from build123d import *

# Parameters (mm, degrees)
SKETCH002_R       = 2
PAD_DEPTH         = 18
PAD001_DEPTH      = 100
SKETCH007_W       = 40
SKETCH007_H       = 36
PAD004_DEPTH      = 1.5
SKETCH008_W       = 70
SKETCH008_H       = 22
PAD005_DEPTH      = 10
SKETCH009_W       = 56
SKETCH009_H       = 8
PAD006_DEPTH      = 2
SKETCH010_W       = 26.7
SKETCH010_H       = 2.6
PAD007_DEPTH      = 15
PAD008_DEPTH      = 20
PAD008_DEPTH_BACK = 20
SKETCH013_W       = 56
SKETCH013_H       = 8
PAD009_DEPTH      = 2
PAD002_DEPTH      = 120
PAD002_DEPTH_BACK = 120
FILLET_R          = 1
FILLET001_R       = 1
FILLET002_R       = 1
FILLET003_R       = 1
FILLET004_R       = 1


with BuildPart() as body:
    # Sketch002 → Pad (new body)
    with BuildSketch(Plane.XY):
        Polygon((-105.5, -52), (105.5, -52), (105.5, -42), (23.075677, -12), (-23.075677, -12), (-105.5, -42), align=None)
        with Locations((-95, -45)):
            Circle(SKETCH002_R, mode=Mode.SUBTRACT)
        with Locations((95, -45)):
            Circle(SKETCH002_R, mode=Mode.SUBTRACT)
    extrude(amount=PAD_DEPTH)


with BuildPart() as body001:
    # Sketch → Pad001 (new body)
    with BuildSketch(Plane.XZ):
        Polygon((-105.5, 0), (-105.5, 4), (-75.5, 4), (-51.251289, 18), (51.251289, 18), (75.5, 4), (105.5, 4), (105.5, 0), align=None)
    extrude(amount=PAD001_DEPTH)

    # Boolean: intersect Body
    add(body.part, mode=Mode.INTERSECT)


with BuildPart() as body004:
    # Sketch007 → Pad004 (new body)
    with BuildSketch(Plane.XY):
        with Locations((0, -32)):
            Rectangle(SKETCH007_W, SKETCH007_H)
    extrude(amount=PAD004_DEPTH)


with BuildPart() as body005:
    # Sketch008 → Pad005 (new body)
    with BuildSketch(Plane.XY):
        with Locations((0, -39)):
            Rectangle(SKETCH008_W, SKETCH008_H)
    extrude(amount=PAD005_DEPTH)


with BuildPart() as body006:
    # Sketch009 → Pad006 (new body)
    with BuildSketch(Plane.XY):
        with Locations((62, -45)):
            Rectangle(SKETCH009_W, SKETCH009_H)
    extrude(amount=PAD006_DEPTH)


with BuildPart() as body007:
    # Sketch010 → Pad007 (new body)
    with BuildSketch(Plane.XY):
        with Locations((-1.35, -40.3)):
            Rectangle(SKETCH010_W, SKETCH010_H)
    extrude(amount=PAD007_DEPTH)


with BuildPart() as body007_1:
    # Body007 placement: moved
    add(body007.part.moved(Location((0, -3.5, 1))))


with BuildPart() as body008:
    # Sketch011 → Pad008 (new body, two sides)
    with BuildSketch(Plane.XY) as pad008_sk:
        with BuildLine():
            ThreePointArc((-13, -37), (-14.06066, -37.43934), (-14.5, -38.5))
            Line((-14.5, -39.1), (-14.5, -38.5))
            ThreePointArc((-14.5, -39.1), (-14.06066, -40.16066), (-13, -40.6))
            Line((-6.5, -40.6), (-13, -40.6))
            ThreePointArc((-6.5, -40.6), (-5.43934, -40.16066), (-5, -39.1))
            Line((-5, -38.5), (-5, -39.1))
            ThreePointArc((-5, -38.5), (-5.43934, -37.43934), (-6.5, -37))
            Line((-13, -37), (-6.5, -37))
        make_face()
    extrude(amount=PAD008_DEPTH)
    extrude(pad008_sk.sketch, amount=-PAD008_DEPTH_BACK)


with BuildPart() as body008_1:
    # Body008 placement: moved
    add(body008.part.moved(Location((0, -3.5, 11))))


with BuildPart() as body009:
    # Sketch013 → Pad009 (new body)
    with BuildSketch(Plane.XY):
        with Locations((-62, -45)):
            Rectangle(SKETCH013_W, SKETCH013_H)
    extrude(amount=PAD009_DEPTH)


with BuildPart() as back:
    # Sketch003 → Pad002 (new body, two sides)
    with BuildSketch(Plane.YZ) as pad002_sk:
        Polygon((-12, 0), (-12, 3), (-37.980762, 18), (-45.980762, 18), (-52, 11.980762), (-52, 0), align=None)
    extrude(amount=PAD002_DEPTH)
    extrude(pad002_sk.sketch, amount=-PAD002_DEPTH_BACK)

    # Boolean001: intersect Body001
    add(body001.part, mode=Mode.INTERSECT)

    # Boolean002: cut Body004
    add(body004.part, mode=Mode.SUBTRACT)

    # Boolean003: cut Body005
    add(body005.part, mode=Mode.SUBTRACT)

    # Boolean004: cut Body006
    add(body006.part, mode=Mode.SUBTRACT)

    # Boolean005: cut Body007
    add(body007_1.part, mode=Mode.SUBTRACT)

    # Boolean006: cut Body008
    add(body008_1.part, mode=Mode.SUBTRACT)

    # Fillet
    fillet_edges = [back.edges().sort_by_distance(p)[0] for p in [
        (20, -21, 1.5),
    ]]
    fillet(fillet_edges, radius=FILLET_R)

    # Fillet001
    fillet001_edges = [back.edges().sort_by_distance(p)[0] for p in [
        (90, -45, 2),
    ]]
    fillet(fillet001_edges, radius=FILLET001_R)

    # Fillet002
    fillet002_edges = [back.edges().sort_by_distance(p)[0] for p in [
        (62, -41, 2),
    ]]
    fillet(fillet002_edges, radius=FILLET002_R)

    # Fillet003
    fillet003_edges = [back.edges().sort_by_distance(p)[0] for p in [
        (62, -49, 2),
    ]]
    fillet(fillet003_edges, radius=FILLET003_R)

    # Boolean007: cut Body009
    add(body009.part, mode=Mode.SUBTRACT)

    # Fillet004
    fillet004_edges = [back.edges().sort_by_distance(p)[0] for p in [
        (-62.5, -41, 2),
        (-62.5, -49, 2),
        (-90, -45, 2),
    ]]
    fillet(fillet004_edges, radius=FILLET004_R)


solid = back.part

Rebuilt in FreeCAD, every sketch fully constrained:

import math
import FreeCAD as App
import Part
import Sketcher
from FreeCAD import Vector
Q = App.Units.Quantity


def edges_at(feature, points):
    """Names of the edges that pass closest to the given points."""
    edges = feature.Shape.Edges
    near = lambda p: min(range(len(edges)), key=lambda i: edges[i].distToShape(Part.Vertex(*p))[0])
    return sorted({f"Edge{near(p) + 1}" for p in points})

doc = App.newDocument("Part")
body = doc.addObject("PartDesign::Body", "Body")

# Sketch on XY plane
sketch1 = doc.addObject("Sketcher::SketchObject", "Sketch")
body.addObject(sketch1)
sketch1.AttachmentSupport = (doc.XY_Plane, [""])
sketch1.MapMode = "FlatFace"
sketch1.addGeometry([
    Part.LineSegment(Vector(-105.5, -52, 0), Vector(105.5, -52, 0)),  # 0
    Part.LineSegment(Vector(105.5, -52, 0), Vector(105.5, -42, 0)),  # 1
    Part.LineSegment(Vector(105.5, -42, 0), Vector(23.1, -12, 0)),  # 2
    Part.LineSegment(Vector(23.1, -12, 0), Vector(-23.1, -12, 0)),  # 3
    Part.LineSegment(Vector(-23.1, -12, 0), Vector(-105.5, -42, 0)),  # 4
    Part.LineSegment(Vector(-105.5, -42, 0), Vector(-105.5, -52, 0)),  # 5
    Part.Circle(Vector(-95, -45, 0), Vector(0, 0, 1), 2),  # 6
    Part.Circle(Vector(95, -45, 0), Vector(0, 0, 1), 2),  # 7
], False)
sketch1.addConstraint([
    Sketcher.Constraint("Coincident", 0, 2, 1, 1),
    Sketcher.Constraint("Coincident", 1, 2, 2, 1),
    Sketcher.Constraint("Coincident", 2, 2, 3, 1),
    Sketcher.Constraint("Coincident", 3, 2, 4, 1),
    Sketcher.Constraint("Coincident", 4, 2, 5, 1),
    Sketcher.Constraint("Coincident", 5, 2, 0, 1),
    Sketcher.Constraint("Horizontal", 0),
    Sketcher.Constraint("Vertical", 1),
    Sketcher.Constraint("Horizontal", 3),
    Sketcher.Constraint("Vertical", 5),
    Sketcher.Constraint("Equal", 6, 7),
    Sketcher.Constraint("Symmetric", 6, 3, 7, 3, -2),
    Sketcher.Constraint("Symmetric", 1, 2, 4, 2, -2),
    Sketcher.Constraint("Equal", 2, 4),
    Sketcher.Constraint("Diameter", 6, 4.0),
    Sketcher.Constraint("DistanceX", 0, 1, 0, 2, 211.0),
    Sketcher.Constraint("DistanceY", 1, 1, 1, 2, 10.0),
    Sketcher.Constraint("Angle", 2, Q("160 deg")),
    Sketcher.Constraint("DistanceX", 6, 3, -1, 1, 95.0),
    Sketcher.Constraint("DistanceY", 6, 3, -1, 1, 45.0),
    Sketcher.Constraint("DistanceY", 0, 2, -1, 1, 52.0),
    Sketcher.Constraint("DistanceY", 2, 2, -1, 1, 12.0),
])
pad1 = doc.addObject("PartDesign::Pad", "Pad")
body.addObject(pad1)
pad1.Profile = sketch1
pad1.Length = 18
body2 = doc.addObject("PartDesign::Body", "Body001")

# Sketch on XZ plane
sketch2 = doc.addObject("Sketcher::SketchObject", "Sketch001")
body2.addObject(sketch2)
sketch2.AttachmentSupport = (doc.getObject("XZ_Plane001"), [""])
sketch2.MapMode = "FlatFace"
sketch2.addGeometry([
    Part.LineSegment(Vector(-105.5, 4, 0), Vector(-105.5, 0, 0)),  # 0
    Part.LineSegment(Vector(-105.5, 0, 0), Vector(105.5, 0, 0)),  # 1
    Part.LineSegment(Vector(105.5, 0, 0), Vector(105.5, 4, 0)),  # 2
    Part.LineSegment(Vector(105.5, 4, 0), Vector(75.5, 4, 0)),  # 3
    Part.LineSegment(Vector(75.5, 4, 0), Vector(51.3, 18, 0)),  # 4
    Part.LineSegment(Vector(51.3, 18, 0), Vector(-51.3, 18, 0)),  # 5
    Part.LineSegment(Vector(-51.3, 18, 0), Vector(-75.5, 4, 0)),  # 6
    Part.LineSegment(Vector(-75.5, 4, 0), Vector(-105.5, 4, 0)),  # 7
], False)
sketch2.addConstraint([
    Sketcher.Constraint("Coincident", 0, 2, 1, 1),
    Sketcher.Constraint("Coincident", 1, 2, 2, 1),
    Sketcher.Constraint("Coincident", 2, 2, 3, 1),
    Sketcher.Constraint("Coincident", 3, 2, 4, 1),
    Sketcher.Constraint("Coincident", 4, 2, 5, 1),
    Sketcher.Constraint("Coincident", 5, 2, 6, 1),
    Sketcher.Constraint("Coincident", 6, 2, 7, 1),
    Sketcher.Constraint("Coincident", 7, 2, 0, 1),
    Sketcher.Constraint("Vertical", 0),
    Sketcher.Constraint("Horizontal", 1),
    Sketcher.Constraint("Vertical", 2),
    Sketcher.Constraint("Horizontal", 3),
    Sketcher.Constraint("Horizontal", 5),
    Sketcher.Constraint("Horizontal", 7),
    Sketcher.Constraint("Symmetric", 0, 2, 1, 2, -1, 1),
    Sketcher.Constraint("Symmetric", 3, 2, 6, 2, -2),
    Sketcher.Constraint("Equal", 4, 6),
    Sketcher.Constraint("DistanceX", 1, 1, 1, 2, 211.0),
    Sketcher.Constraint("DistanceX", 3, 2, 3, 1, 30.0),
    Sketcher.Constraint("DistanceY", 0, 2, 0, 1, 4.0),
    Sketcher.Constraint("Angle", 4, Q("150 deg")),
    Sketcher.Constraint("Distance", 4, 28.0),
])
pad2 = doc.addObject("PartDesign::Pad", "Pad001")
body2.addObject(pad2)
pad2.Profile = sketch2
pad2.Length = 100
doc.recompute()

boolean = doc.addObject("PartDesign::Boolean", "Boolean")
body2.addObject(boolean)
boolean.Type = "Common"
boolean.addObjects([body])
body3 = doc.addObject("PartDesign::Body", "Body002")

# Sketch on XY plane
sketch3 = doc.addObject("Sketcher::SketchObject", "Sketch002")
body3.addObject(sketch3)
sketch3.AttachmentSupport = (doc.getObject("XY_Plane002"), [""])
sketch3.MapMode = "FlatFace"
sketch3.addGeometry([
    Part.LineSegment(Vector(-20, -14, 0), Vector(-20, -50, 0)),
    Part.LineSegment(Vector(-20, -50, 0), Vector(20, -50, 0)),
    Part.LineSegment(Vector(20, -50, 0), Vector(20, -14, 0)),
    Part.LineSegment(Vector(20, -14, 0), Vector(-20, -14, 0)),
], False)
sketch3.addConstraint([
    Sketcher.Constraint("Coincident", 0, 2, 1, 1),
    Sketcher.Constraint("Coincident", 1, 2, 2, 1),
    Sketcher.Constraint("Coincident", 2, 2, 3, 1),
    Sketcher.Constraint("Coincident", 3, 2, 0, 1),
    Sketcher.Constraint("Vertical", 0),
    Sketcher.Constraint("Horizontal", 1),
    Sketcher.Constraint("Vertical", 2),
    Sketcher.Constraint("Horizontal", 3),
    Sketcher.Constraint("DistanceX", 1, 1, 1, 2, 40.0),
    Sketcher.Constraint("DistanceY", 0, 2, 0, 1, 36.0),
    Sketcher.Constraint("DistanceX", 0, 2, -1, 1, 20.0),
    Sketcher.Constraint("DistanceY", 0, 2, -1, 1, 50.0),
])
pad3 = doc.addObject("PartDesign::Pad", "Pad002")
body3.addObject(pad3)
pad3.Profile = sketch3
pad3.Length = 1.5
body4 = doc.addObject("PartDesign::Body", "Body003")

# Sketch on XY plane
sketch4 = doc.addObject("Sketcher::SketchObject", "Sketch003")
body4.addObject(sketch4)
sketch4.AttachmentSupport = (doc.getObject("XY_Plane003"), [""])
sketch4.MapMode = "FlatFace"
sketch4.addGeometry([
    Part.LineSegment(Vector(-35, -28, 0), Vector(-35, -50, 0)),
    Part.LineSegment(Vector(-35, -50, 0), Vector(35, -50, 0)),
    Part.LineSegment(Vector(35, -50, 0), Vector(35, -28, 0)),
    Part.LineSegment(Vector(35, -28, 0), Vector(-35, -28, 0)),
], False)
sketch4.addConstraint([
    Sketcher.Constraint("Coincident", 0, 2, 1, 1),
    Sketcher.Constraint("Coincident", 1, 2, 2, 1),
    Sketcher.Constraint("Coincident", 2, 2, 3, 1),
    Sketcher.Constraint("Coincident", 3, 2, 0, 1),
    Sketcher.Constraint("Vertical", 0),
    Sketcher.Constraint("Horizontal", 1),
    Sketcher.Constraint("Vertical", 2),
    Sketcher.Constraint("Horizontal", 3),
    Sketcher.Constraint("DistanceX", 1, 1, 1, 2, 70.0),
    Sketcher.Constraint("DistanceY", 0, 2, 0, 1, 22.0),
    Sketcher.Constraint("DistanceX", 0, 2, -1, 1, 35.0),
    Sketcher.Constraint("DistanceY", 0, 2, -1, 1, 50.0),
])
pad4 = doc.addObject("PartDesign::Pad", "Pad003")
body4.addObject(pad4)
pad4.Profile = sketch4
pad4.Length = 10
body5 = doc.addObject("PartDesign::Body", "Body004")

# Sketch on XY plane
sketch5 = doc.addObject("Sketcher::SketchObject", "Sketch004")
body5.addObject(sketch5)
sketch5.AttachmentSupport = (doc.getObject("XY_Plane004"), [""])
sketch5.MapMode = "FlatFace"
sketch5.addGeometry([
    Part.LineSegment(Vector(34, -41, 0), Vector(34, -49, 0)),
    Part.LineSegment(Vector(34, -49, 0), Vector(90, -49, 0)),
    Part.LineSegment(Vector(90, -49, 0), Vector(90, -41, 0)),
    Part.LineSegment(Vector(90, -41, 0), Vector(34, -41, 0)),
], False)
sketch5.addConstraint([
    Sketcher.Constraint("Coincident", 0, 2, 1, 1),
    Sketcher.Constraint("Coincident", 1, 2, 2, 1),
    Sketcher.Constraint("Coincident", 2, 2, 3, 1),
    Sketcher.Constraint("Coincident", 3, 2, 0, 1),
    Sketcher.Constraint("Vertical", 0),
    Sketcher.Constraint("Horizontal", 1),
    Sketcher.Constraint("Vertical", 2),
    Sketcher.Constraint("Horizontal", 3),
    Sketcher.Constraint("DistanceX", 1, 1, 1, 2, 56.0),
    Sketcher.Constraint("DistanceY", 0, 2, 0, 1, 8.0),
    Sketcher.Constraint("DistanceX", -1, 1, 0, 2, 34.0),
    Sketcher.Constraint("DistanceY", 0, 2, -1, 1, 49.0),
])
pad5 = doc.addObject("PartDesign::Pad", "Pad004")
body5.addObject(pad5)
pad5.Profile = sketch5
pad5.Length = 2
body6 = doc.addObject("PartDesign::Body", "Body005")

# Sketch on XY plane
sketch6 = doc.addObject("Sketcher::SketchObject", "Sketch005")
body6.addObject(sketch6)
sketch6.AttachmentSupport = (doc.getObject("XY_Plane005"), [""])
sketch6.MapMode = "FlatFace"
sketch6.addGeometry([
    Part.LineSegment(Vector(-14.7, -39, 0), Vector(-14.7, -41.6, 0)),
    Part.LineSegment(Vector(-14.7, -41.6, 0), Vector(12, -41.6, 0)),
    Part.LineSegment(Vector(12, -41.6, 0), Vector(12, -39, 0)),
    Part.LineSegment(Vector(12, -39, 0), Vector(-14.7, -39, 0)),
], False)
sketch6.addConstraint([
    Sketcher.Constraint("Coincident", 0, 2, 1, 1),
    Sketcher.Constraint("Coincident", 1, 2, 2, 1),
    Sketcher.Constraint("Coincident", 2, 2, 3, 1),
    Sketcher.Constraint("Coincident", 3, 2, 0, 1),
    Sketcher.Constraint("Vertical", 0),
    Sketcher.Constraint("Horizontal", 1),
    Sketcher.Constraint("Vertical", 2),
    Sketcher.Constraint("Horizontal", 3),
    Sketcher.Constraint("DistanceX", 1, 1, 1, 2, 26.7),
    Sketcher.Constraint("DistanceY", 0, 2, 0, 1, 2.6),
    Sketcher.Constraint("DistanceX", -1, 1, 1, 2, 12.0),
    Sketcher.Constraint("DistanceY", 2, 2, -1, 1, 39.0),
])
pad6 = doc.addObject("PartDesign::Pad", "Pad005")
body6.addObject(pad6)
pad6.Profile = sketch6
pad6.Length = 15
body7 = doc.addObject("PartDesign::Body", "Body006")
doc.recompute()

body6.Placement = App.Placement(Vector(0, -3.5, 1), App.Rotation(Vector(0, 0, 1), 0))
boolean2 = doc.addObject("PartDesign::Boolean", "Boolean001")
body7.addObject(boolean2)
boolean2.Type = "Fuse"
boolean2.addObjects([body6])
body8 = doc.addObject("PartDesign::Body", "Body007")

# Sketch on XY plane
sketch7 = doc.addObject("Sketcher::SketchObject", "Sketch006")
body8.addObject(sketch7)
sketch7.AttachmentSupport = (doc.getObject("XY_Plane007"), [""])
sketch7.MapMode = "FlatFace"
sketch7.addGeometry([
    Part.ArcOfCircle(Part.Circle(Vector(-13, -38.5, 0), Vector(0, 0, 1), 1.5), math.radians(90), math.radians(180)),  # 0
    Part.LineSegment(Vector(-14.5, -38.5, 0), Vector(-14.5, -39.1, 0)),  # 1
    Part.ArcOfCircle(Part.Circle(Vector(-13, -39.1, 0), Vector(0, 0, 1), 1.5), math.radians(-180), math.radians(-90)),  # 2
    Part.LineSegment(Vector(-13, -40.6, 0), Vector(-6.5, -40.6, 0)),  # 3
    Part.ArcOfCircle(Part.Circle(Vector(-6.5, -39.1, 0), Vector(0, 0, 1), 1.5), math.radians(-90), math.radians(0)),  # 4
    Part.LineSegment(Vector(-5, -39.1, 0), Vector(-5, -38.5, 0)),  # 5
    Part.ArcOfCircle(Part.Circle(Vector(-6.5, -38.5, 0), Vector(0, 0, 1), 1.5), math.radians(0), math.radians(90)),  # 6
    Part.LineSegment(Vector(-6.5, -37, 0), Vector(-13, -37, 0)),  # 7
], False)
sketch7.addConstraint([
    Sketcher.Constraint("Tangent", 0, 2, 1, 1),
    Sketcher.Constraint("Tangent", 1, 2, 2, 1),
    Sketcher.Constraint("Tangent", 2, 2, 3, 1),
    Sketcher.Constraint("Tangent", 3, 2, 4, 1),
    Sketcher.Constraint("Tangent", 4, 2, 5, 1),
    Sketcher.Constraint("Tangent", 5, 2, 6, 1),
    Sketcher.Constraint("Tangent", 6, 2, 7, 1),
    Sketcher.Constraint("Tangent", 7, 2, 0, 1),
    Sketcher.Constraint("Vertical", 1),
    Sketcher.Constraint("Horizontal", 3),
    Sketcher.Constraint("Vertical", 5),
    Sketcher.Constraint("Horizontal", 7),
    Sketcher.Constraint("Equal", 0, 2),
    Sketcher.Constraint("Equal", 2, 4),
    Sketcher.Constraint("Equal", 4, 6),
    Sketcher.Constraint("Radius", 0, 1.500001),
    Sketcher.Constraint("DistanceX", 3, 1, 3, 2, 6.5),
    Sketcher.Constraint("DistanceY", 1, 2, 1, 1, 0.6),
    Sketcher.Constraint("DistanceX", 0, 3, -1, 1, 12.999999),
    Sketcher.Constraint("DistanceY", 6, 2, -1, 1, 37.0),
])
pad7 = doc.addObject("PartDesign::Pad", "Pad006")
body8.addObject(pad7)
pad7.Profile = sketch7
pad7.Type = "TwoLengths"
pad7.Length = 20
pad7.Length2 = 20
body9 = doc.addObject("PartDesign::Body", "Body008")
doc.recompute()

body8.Placement = App.Placement(Vector(0, -3.5, 11), App.Rotation(Vector(0, 0, 1), 0))
boolean3 = doc.addObject("PartDesign::Boolean", "Boolean002")
body9.addObject(boolean3)
boolean3.Type = "Fuse"
boolean3.addObjects([body8])
body10 = doc.addObject("PartDesign::Body", "Body009")

# Sketch on XY plane
sketch8 = doc.addObject("Sketcher::SketchObject", "Sketch007")
body10.addObject(sketch8)
sketch8.AttachmentSupport = (doc.getObject("XY_Plane009"), [""])
sketch8.MapMode = "FlatFace"
sketch8.addGeometry([
    Part.LineSegment(Vector(-90, -41, 0), Vector(-90, -49, 0)),
    Part.LineSegment(Vector(-90, -49, 0), Vector(-34, -49, 0)),
    Part.LineSegment(Vector(-34, -49, 0), Vector(-34, -41, 0)),
    Part.LineSegment(Vector(-34, -41, 0), Vector(-90, -41, 0)),
], False)
sketch8.addConstraint([
    Sketcher.Constraint("Coincident", 0, 2, 1, 1),
    Sketcher.Constraint("Coincident", 1, 2, 2, 1),
    Sketcher.Constraint("Coincident", 2, 2, 3, 1),
    Sketcher.Constraint("Coincident", 3, 2, 0, 1),
    Sketcher.Constraint("Vertical", 0),
    Sketcher.Constraint("Horizontal", 1),
    Sketcher.Constraint("Vertical", 2),
    Sketcher.Constraint("Horizontal", 3),
    Sketcher.Constraint("DistanceX", 1, 1, 1, 2, 56.0),
    Sketcher.Constraint("DistanceY", 0, 2, 0, 1, 8.0),
    Sketcher.Constraint("DistanceX", 0, 2, -1, 1, 90.0),
    Sketcher.Constraint("DistanceY", 0, 2, -1, 1, 49.0),
])
pad8 = doc.addObject("PartDesign::Pad", "Pad007")
body10.addObject(pad8)
pad8.Profile = sketch8
pad8.Length = 2
body11 = doc.addObject("PartDesign::Body", "Body010")

# Sketch on YZ plane
sketch9 = doc.addObject("Sketcher::SketchObject", "Sketch008")
body11.addObject(sketch9)
sketch9.AttachmentSupport = (doc.getObject("YZ_Plane010"), [""])
sketch9.MapMode = "FlatFace"
sketch9.addGeometry([
    Part.LineSegment(Vector(-12, 0, 0), Vector(-12, 3, 0)),  # 0
    Part.LineSegment(Vector(-12, 3, 0), Vector(-38, 18, 0)),  # 1
    Part.LineSegment(Vector(-38, 18, 0), Vector(-46, 18, 0)),  # 2
    Part.LineSegment(Vector(-46, 18, 0), Vector(-52, 12, 0)),  # 3
    Part.LineSegment(Vector(-52, 12, 0), Vector(-52, 0, 0)),  # 4
    Part.LineSegment(Vector(-52, 0, 0), Vector(-12, 0, 0)),  # 5
], False)
sketch9.addConstraint([
    Sketcher.Constraint("Coincident", 0, 2, 1, 1),
    Sketcher.Constraint("Coincident", 1, 2, 2, 1),
    Sketcher.Constraint("Coincident", 2, 2, 3, 1),
    Sketcher.Constraint("Coincident", 3, 2, 4, 1),
    Sketcher.Constraint("Coincident", 4, 2, 5, 1),
    Sketcher.Constraint("Coincident", 5, 2, 0, 1),
    Sketcher.Constraint("Vertical", 0),
    Sketcher.Constraint("Horizontal", 2),
    Sketcher.Constraint("Vertical", 4),
    Sketcher.Constraint("Horizontal", 5),
    Sketcher.Constraint("PointOnObject", 4, 2, -1),
    Sketcher.Constraint("DistanceX", 2, 2, 2, 1, 8.0),
    Sketcher.Constraint("DistanceX", 5, 1, 5, 2, 40.0),
    Sketcher.Constraint("DistanceY", 0, 1, 0, 2, 3.0),
    Sketcher.Constraint("Angle", 1, Q("150 deg")),
    Sketcher.Constraint("Angle", 3, Q("-135 deg")),
    Sketcher.Constraint("Distance", 1, 30.0),
    Sketcher.Constraint("DistanceX", 0, 2, -1, 1, 12.0),
])
pad9 = doc.addObject("PartDesign::Pad", "Pad008")
body11.addObject(pad9)
pad9.Profile = sketch9
pad9.Type = "TwoLengths"
pad9.Length = 120
pad9.Length2 = 120
doc.recompute()

boolean4 = doc.addObject("PartDesign::Boolean", "Boolean003")
body11.addObject(boolean4)
boolean4.Type = "Common"
boolean4.addObjects([body2])
doc.recompute()

boolean5 = doc.addObject("PartDesign::Boolean", "Boolean004")
body11.addObject(boolean5)
boolean5.Type = "Cut"
boolean5.addObjects([body3])
doc.recompute()

boolean6 = doc.addObject("PartDesign::Boolean", "Boolean005")
body11.addObject(boolean6)
boolean6.Type = "Cut"
boolean6.addObjects([body4])
doc.recompute()

boolean7 = doc.addObject("PartDesign::Boolean", "Boolean006")
body11.addObject(boolean7)
boolean7.Type = "Cut"
boolean7.addObjects([body5])
doc.recompute()

boolean8 = doc.addObject("PartDesign::Boolean", "Boolean007")
body11.addObject(boolean8)
boolean8.Type = "Cut"
boolean8.addObjects([body7])
doc.recompute()

boolean9 = doc.addObject("PartDesign::Boolean", "Boolean008")
body11.addObject(boolean9)
boolean9.Type = "Cut"
boolean9.addObjects([body9])
doc.recompute()

fillet = doc.addObject("PartDesign::Fillet", "Fillet")
body11.addObject(fillet)
fillet.Base = (boolean9, edges_at(boolean9, [(20, -21, 1.5)]))
fillet.Radius = 1
doc.recompute()

fillet2 = doc.addObject("PartDesign::Fillet", "Fillet001")
body11.addObject(fillet2)
fillet2.Base = (fillet, edges_at(fillet, [(90, -45, 2)]))
fillet2.Radius = 1
doc.recompute()

fillet3 = doc.addObject("PartDesign::Fillet", "Fillet002")
body11.addObject(fillet3)
fillet3.Base = (fillet2, edges_at(fillet2, [(62, -41, 2)]))
fillet3.Radius = 1
doc.recompute()

fillet4 = doc.addObject("PartDesign::Fillet", "Fillet003")
body11.addObject(fillet4)
fillet4.Base = (fillet3, edges_at(fillet3, [(62, -49, 2)]))
fillet4.Radius = 1
doc.recompute()

boolean10 = doc.addObject("PartDesign::Boolean", "Boolean009")
body11.addObject(boolean10)
boolean10.Type = "Cut"
boolean10.addObjects([body10])
doc.recompute()

fillet5 = doc.addObject("PartDesign::Fillet", "Fillet004")
body11.addObject(fillet5)
fillet5.Base = (boolean10, edges_at(boolean10, [(-62.5, -41, 2), (-62.5, -49, 2), (-90, -45, 2)]))
fillet5.Radius = 1

doc.recompute()
